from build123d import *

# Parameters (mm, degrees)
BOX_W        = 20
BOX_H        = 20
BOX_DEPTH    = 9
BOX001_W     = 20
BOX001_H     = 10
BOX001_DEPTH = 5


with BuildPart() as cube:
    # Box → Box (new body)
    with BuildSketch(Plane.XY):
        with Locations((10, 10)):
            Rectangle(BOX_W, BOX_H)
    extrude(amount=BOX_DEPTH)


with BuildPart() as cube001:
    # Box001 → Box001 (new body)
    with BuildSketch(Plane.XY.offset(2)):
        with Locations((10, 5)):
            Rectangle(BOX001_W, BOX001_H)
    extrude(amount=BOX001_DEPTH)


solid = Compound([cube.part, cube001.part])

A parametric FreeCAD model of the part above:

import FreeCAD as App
import Part
import Sketcher
from FreeCAD import Vector
Q = App.Units.Quantity

doc = App.newDocument("Part")
body = doc.addObject("PartDesign::Body", "Body")

# Sketch on XY plane
sketch1 = doc.addObject("Sketcher::SketchObject", "Sketch")
body.addObject(sketch1)
sketch1.AttachmentSupport = (doc.XY_Plane, [""])
sketch1.MapMode = "FlatFace"
sketch1.addGeometry([
    Part.LineSegment(Vector(0, 20, 0), Vector(0, 0, 0)),
    Part.LineSegment(Vector(0, 0, 0), Vector(20, 0, 0)),
    Part.LineSegment(Vector(20, 0, 0), Vector(20, 20, 0)),
    Part.LineSegment(Vector(20, 20, 0), Vector(0, 20, 0)),
], False)
sketch1.addConstraint([
    Sketcher.Constraint("Coincident", 0, 2, 1, 1),
    Sketcher.Constraint("Coincident", 1, 2, 2, 1),
    Sketcher.Constraint("Coincident", 2, 2, 3, 1),
    Sketcher.Constraint("Coincident", 3, 2, 0, 1),
    Sketcher.Constraint("Vertical", 0),
    Sketcher.Constraint("Horizontal", 1),
    Sketcher.Constraint("Vertical", 2),
    Sketcher.Constraint("Horizontal", 3),
    Sketcher.Constraint("Coincident", 0, 2, -1, 1),
    Sketcher.Constraint("Equal", 3, 0),
    Sketcher.Constraint("DistanceX", 1, 1, 1, 2, Q("20 mm")),
])
pad1 = doc.addObject("PartDesign::Pad", "Pad")
body.addObject(pad1)
pad1.Profile = sketch1
pad1.Length = 9
body2 = doc.addObject("PartDesign::Body", "Body001")

# Sketch on XY plane
sketch2 = doc.addObject("Sketcher::SketchObject", "Sketch001")
body2.addObject(sketch2)
sketch2.AttachmentSupport = (doc.getObject("XY_Plane001"), [""])
sketch2.MapMode = "FlatFace"
sketch2.AttachmentOffset = App.Placement(Vector(0, 0, 2), App.Rotation())
sketch2.addGeometry([
    Part.LineSegment(Vector(0, 10, 0), Vector(0, 0, 0)),
    Part.LineSegment(Vector(0, 0, 0), Vector(20, 0, 0)),
    Part.LineSegment(Vector(20, 0, 0), Vector(20, 10, 0)),
    Part.LineSegment(Vector(20, 10, 0), Vector(0, 10, 0)),
], False)
sketch2.addConstraint([
    Sketcher.Constraint("Coincident", 0, 2, 1, 1),
    Sketcher.Constraint("Coincident", 1, 2, 2, 1),
    Sketcher.Constraint("Coincident", 2, 2, 3, 1),
    Sketcher.Constraint("Coincident", 3, 2, 0, 1),
    Sketcher.Constraint("Vertical", 0),
    Sketcher.Constraint("Horizontal", 1),
    Sketcher.Constraint("Vertical", 2),
    Sketcher.Constraint("Horizontal", 3),
    Sketcher.Constraint("Coincident", 0, 2, -1, 1),
    Sketcher.Constraint("DistanceX", 1, 1, 1, 2, Q("20 mm")),
    Sketcher.Constraint("DistanceY", 0, 2, 0, 1, Q("10 mm")),
])
pad2 = doc.addObject("PartDesign::Pad", "Pad001")
body2.addObject(pad2)
pad2.Profile = sketch2
pad2.Length = 5

doc.recompute()
